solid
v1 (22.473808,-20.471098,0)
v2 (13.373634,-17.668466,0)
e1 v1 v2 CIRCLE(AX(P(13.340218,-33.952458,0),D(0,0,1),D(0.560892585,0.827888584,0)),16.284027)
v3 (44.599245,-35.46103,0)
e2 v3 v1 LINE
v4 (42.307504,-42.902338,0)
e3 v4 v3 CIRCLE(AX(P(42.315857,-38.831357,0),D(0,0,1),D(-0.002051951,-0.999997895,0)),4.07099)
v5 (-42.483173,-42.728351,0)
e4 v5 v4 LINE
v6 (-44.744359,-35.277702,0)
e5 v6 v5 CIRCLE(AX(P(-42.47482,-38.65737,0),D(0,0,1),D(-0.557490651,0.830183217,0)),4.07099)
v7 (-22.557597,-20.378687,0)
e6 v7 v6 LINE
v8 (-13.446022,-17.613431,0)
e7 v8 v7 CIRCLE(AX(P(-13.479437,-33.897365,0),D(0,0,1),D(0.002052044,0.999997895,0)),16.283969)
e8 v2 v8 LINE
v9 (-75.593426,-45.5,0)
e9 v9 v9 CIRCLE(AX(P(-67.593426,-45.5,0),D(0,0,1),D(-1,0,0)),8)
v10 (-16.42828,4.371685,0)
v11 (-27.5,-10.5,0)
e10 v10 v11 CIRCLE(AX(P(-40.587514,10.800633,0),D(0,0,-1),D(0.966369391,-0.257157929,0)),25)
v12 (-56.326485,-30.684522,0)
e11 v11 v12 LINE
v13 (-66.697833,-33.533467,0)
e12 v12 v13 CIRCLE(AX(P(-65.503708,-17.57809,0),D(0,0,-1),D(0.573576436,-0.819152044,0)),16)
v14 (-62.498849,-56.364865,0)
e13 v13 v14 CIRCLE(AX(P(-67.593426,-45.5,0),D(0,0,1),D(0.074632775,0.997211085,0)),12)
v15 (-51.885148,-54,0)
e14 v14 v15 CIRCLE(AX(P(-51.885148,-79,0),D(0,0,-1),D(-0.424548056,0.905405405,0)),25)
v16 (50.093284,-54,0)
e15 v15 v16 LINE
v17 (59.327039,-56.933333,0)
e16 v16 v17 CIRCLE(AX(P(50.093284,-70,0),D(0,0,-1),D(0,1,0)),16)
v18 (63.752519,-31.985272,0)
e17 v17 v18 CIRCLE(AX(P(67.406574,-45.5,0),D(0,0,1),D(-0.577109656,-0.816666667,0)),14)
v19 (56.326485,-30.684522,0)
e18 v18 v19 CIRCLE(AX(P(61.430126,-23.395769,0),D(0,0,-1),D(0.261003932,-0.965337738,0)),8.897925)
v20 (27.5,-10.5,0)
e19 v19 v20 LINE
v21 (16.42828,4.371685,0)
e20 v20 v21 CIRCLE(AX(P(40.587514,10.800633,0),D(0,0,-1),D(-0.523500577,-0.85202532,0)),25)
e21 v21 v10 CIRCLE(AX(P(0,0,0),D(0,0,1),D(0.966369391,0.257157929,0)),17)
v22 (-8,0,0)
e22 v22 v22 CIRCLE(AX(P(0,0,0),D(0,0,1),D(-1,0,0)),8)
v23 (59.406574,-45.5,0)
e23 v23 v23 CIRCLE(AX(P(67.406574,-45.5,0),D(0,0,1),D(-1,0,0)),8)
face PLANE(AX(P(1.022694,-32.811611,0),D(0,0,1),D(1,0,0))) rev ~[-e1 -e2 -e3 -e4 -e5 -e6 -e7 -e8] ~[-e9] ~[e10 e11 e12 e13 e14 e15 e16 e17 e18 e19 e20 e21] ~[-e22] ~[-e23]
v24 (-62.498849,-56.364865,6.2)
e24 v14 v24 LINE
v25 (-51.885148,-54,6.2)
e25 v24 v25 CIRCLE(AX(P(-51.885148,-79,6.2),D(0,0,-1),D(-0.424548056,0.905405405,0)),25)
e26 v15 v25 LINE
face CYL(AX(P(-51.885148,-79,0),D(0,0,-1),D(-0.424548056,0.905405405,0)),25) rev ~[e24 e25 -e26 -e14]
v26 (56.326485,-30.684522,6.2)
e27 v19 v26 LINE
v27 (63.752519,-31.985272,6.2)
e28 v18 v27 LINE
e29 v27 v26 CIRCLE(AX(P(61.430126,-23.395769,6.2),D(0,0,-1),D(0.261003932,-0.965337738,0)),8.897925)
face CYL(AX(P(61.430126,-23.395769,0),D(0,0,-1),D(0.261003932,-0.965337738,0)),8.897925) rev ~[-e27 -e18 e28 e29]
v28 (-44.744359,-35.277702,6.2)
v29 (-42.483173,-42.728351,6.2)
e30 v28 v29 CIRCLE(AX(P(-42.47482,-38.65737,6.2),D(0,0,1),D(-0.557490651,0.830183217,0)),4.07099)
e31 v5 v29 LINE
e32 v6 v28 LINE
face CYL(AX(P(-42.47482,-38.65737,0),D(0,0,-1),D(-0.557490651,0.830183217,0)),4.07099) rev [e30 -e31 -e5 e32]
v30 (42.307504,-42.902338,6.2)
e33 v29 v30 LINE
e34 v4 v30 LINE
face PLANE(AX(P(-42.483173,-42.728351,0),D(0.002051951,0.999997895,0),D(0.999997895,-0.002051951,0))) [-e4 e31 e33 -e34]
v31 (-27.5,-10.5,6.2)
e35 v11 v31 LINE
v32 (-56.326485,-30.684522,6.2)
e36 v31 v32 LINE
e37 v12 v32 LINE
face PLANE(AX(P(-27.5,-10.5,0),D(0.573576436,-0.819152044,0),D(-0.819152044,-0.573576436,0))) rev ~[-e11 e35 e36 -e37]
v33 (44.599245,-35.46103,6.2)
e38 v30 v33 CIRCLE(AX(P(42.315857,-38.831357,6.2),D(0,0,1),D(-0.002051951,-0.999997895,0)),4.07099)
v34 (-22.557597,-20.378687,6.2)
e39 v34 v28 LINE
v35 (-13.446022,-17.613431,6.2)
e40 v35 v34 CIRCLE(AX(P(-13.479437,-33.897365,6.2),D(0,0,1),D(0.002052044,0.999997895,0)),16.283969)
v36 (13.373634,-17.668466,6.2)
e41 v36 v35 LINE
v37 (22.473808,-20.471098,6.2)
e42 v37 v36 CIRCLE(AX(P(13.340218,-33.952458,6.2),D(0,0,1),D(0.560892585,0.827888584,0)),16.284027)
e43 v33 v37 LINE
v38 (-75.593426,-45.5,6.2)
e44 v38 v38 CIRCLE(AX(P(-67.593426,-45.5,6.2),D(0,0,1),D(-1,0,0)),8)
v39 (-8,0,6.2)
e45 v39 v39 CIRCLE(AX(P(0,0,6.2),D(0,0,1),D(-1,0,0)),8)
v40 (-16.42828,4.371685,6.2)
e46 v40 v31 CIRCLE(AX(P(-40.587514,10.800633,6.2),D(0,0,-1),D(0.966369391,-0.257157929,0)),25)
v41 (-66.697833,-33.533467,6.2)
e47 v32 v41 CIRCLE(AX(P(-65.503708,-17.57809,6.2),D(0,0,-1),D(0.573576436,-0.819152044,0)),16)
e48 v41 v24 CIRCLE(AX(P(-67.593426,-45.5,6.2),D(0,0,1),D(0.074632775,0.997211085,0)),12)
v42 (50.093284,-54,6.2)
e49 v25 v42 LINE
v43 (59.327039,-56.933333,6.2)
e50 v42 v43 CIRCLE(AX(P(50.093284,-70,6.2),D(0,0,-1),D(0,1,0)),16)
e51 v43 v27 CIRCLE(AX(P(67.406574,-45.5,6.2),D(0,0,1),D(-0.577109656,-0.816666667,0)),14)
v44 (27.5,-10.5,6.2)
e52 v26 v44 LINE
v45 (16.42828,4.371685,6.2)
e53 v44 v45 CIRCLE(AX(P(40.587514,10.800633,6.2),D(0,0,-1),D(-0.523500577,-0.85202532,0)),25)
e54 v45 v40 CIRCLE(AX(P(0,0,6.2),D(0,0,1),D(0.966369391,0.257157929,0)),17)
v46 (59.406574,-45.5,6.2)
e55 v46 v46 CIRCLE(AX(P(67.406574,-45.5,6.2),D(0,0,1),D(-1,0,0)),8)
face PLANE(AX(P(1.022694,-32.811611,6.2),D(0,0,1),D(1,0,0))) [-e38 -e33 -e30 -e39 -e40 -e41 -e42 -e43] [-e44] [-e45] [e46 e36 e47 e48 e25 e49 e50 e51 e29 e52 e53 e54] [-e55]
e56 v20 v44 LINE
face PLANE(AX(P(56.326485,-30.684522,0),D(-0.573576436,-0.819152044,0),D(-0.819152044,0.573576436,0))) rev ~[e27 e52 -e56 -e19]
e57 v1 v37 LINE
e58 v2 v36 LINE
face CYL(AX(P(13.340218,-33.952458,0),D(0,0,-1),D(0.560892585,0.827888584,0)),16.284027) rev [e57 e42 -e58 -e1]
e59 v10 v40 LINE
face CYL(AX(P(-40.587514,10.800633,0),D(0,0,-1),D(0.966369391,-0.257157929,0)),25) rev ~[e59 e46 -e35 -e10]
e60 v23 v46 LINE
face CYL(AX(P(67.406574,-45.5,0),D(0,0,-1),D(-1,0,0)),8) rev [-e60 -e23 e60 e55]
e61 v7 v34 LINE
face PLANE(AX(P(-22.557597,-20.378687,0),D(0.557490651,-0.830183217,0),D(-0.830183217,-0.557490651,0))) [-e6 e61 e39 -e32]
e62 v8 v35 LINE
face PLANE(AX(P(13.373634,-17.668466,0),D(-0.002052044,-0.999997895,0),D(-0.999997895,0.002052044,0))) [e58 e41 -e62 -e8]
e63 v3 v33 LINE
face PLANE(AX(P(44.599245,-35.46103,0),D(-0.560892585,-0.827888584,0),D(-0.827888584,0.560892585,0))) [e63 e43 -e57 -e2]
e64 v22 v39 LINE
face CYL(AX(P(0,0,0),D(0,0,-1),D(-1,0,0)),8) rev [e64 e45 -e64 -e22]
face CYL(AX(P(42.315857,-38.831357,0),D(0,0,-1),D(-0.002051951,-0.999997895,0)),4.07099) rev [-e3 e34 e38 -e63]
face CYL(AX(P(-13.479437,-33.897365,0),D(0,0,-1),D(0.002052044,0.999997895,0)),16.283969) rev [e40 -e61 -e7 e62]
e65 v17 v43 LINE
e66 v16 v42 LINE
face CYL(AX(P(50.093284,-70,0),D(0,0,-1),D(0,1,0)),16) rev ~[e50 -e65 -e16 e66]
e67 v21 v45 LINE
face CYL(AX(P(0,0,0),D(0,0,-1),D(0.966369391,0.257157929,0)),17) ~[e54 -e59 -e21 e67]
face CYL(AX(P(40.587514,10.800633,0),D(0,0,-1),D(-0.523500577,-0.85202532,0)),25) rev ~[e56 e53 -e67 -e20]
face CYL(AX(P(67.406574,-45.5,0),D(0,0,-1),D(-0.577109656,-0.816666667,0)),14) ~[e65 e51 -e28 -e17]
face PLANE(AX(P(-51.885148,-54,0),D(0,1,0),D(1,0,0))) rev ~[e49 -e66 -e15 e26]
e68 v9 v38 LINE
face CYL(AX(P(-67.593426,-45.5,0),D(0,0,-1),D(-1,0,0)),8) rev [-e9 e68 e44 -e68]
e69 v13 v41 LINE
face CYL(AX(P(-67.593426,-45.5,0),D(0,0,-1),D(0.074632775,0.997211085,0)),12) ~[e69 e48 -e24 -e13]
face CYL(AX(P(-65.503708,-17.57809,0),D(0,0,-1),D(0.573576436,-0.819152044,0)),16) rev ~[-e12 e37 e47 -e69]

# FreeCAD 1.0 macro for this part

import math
import FreeCAD as App
import Part
import Sketcher

V = App.Vector
Q = App.Units.Quantity

doc = App.newDocument("Part")
body = doc.addObject("PartDesign::Body", "Body")

# Sketch on XY plane
sketch1 = body.newObject("Sketcher::SketchObject", "Sketch")
sketch1.AttachmentSupport = (doc.getObject("XY_Plane"), [""])
sketch1.MapMode = "FlatFace"
sketch1.addGeometry(Part.LineSegment(V(56.3, -30.7, 0), V(27.5, -10.5, 0)), False)
sketch1.addGeometry(Part.ArcOfCircle(Part.Circle(V(40.6, 10.8, 0), V(0, 0, 1), 25), math.radians(-165), math.radians(-122)), False)
sketch1.addGeometry(Part.ArcOfCircle(Part.Circle(V(0, 0, 0), V(0, 0, 1), 17), math.radians(15), math.radians(165)), False)
sketch1.addGeometry(Part.ArcOfCircle(Part.Circle(V(-40.6, 10.8, 0), V(0, 0, 1), 25), math.radians(-58), math.radians(-15)), False)
sketch1.addGeometry(Part.LineSegment(V(-27.5, -10.5, 0), V(-56.3, -30.7, 0)), False)
sketch1.addGeometry(Part.ArcOfCircle(Part.Circle(V(-65.5, -17.6, 0), V(0, 0, 1), 16), math.radians(-94), math.radians(-55)), False)
sketch1.addGeometry(Part.ArcOfCircle(Part.Circle(V(-67.6, -45.5, 0), V(0, 0, 1), 12), math.radians(86), math.radians(295)), False)
sketch1.addGeometry(Part.ArcOfCircle(Part.Circle(V(-51.9, -79, 0), V(0, 0, 1), 25), math.radians(90), math.radians(115)), False)
sketch1.addGeometry(Part.LineSegment(V(-51.9, -54, 0), V(50.1, -54, 0)), False)
sketch1.addGeometry(Part.ArcOfCircle(Part.Circle(V(50.1, -70, 0), V(0, 0, 1), 16), math.radians(55), math.radians(90)), False)
sketch1.addGeometry(Part.ArcOfCircle(Part.Circle(V(67.4, -45.5, 0), V(0, 0, 1), 14), math.radians(-125), math.radians(105)), False)
sketch1.addGeometry(Part.ArcOfCircle(Part.Circle(V(61.4, -23.4, 0), V(0, 0, 1), 8.9), math.radians(-125), math.radians(-75)), False)
sketch1.addGeometry(Part.Circle(V(-67.6, -45.5, 0), V(0, 0, 1), 8), False)
sketch1.addGeometry(Part.Circle(V(67.4, -45.5, 0), V(0, 0, 1), 8), False)
sketch1.addGeometry(Part.LineSegment(V(-13.4, -17.6, 0), V(13.4, -17.7, 0)), False)
sketch1.addGeometry(Part.ArcOfCircle(Part.Circle(V(13.3, -34, 0), V(0, 0, 1), 16.3), math.radians(56), math.radians(90)), False)
sketch1.addGeometry(Part.LineSegment(V(22.5, -20.5, 0), V(44.6, -35.5, 0)), False)
sketch1.addGeometry(Part.ArcOfCircle(Part.Circle(V(42.3, -38.8, 0), V(0, 0, 1), 4.1), math.radians(-90), math.radians(56)), False)
sketch1.addGeometry(Part.LineSegment(V(42.3, -42.9, 0), V(-42.5, -42.7, 0)), False)
sketch1.addGeometry(Part.ArcOfCircle(Part.Circle(V(-42.5, -38.7, 0), V(0, 0, 1), 4.1), math.radians(124), math.radians(270)), False)
sketch1.addGeometry(Part.LineSegment(V(-44.7, -35.3, 0), V(-22.6, -20.4, 0)), False)
sketch1.addGeometry(Part.ArcOfCircle(Part.Circle(V(-13.5, -33.9, 0), V(0, 0, 1), 16.3), math.radians(90), math.radians(124)), False)
sketch1.addGeometry(Part.Circle(V(0, 0, 0), V(0, 0, 1), 8), False)
sketch1.addConstraint(Sketcher.Constraint("Coincident", 0, 2, 1, 2))
sketch1.addConstraint(Sketcher.Constraint("Tangent", 1, 1, 2, 1))
sketch1.addConstraint(Sketcher.Constraint("Tangent", 2, 2, 3, 2))
sketch1.addConstraint(Sketcher.Constraint("Coincident", 3, 1, 4, 1))
sketch1.addConstraint(Sketcher.Constraint("Tangent", 4, 2, 5, 2))
sketch1.addConstraint(Sketcher.Constraint("Tangent", 5, 1, 6, 1))
sketch1.addConstraint(Sketcher.Constraint("Tangent", 6, 2, 7, 2))
sketch1.addConstraint(Sketcher.Constraint("Tangent", 7, 1, 8, 1))
sketch1.addConstraint(Sketcher.Constraint("Tangent", 8, 2, 9, 2))
sketch1.addConstraint(Sketcher.Constraint("Tangent", 9, 1, 10, 1))
sketch1.addConstraint(Sketcher.Constraint("Tangent", 10, 2, 11, 2))
sketch1.addConstraint(Sketcher.Constraint("Tangent", 11, 1, 0, 1))
sketch1.addConstraint(Sketcher.Constraint("Tangent", 14, 2, 15, 2))
sketch1.addConstraint(Sketcher.Constraint("Tangent", 15, 1, 16, 1))
sketch1.addConstraint(Sketcher.Constraint("Tangent", 16, 2, 17, 2))
sketch1.addConstraint(Sketcher.Constraint("Tangent", 17, 1, 18, 1))
sketch1.addConstraint(Sketcher.Constraint("Tangent", 18, 2, 19, 2))
sketch1.addConstraint(Sketcher.Constraint("Tangent", 19, 1, 20, 1))
sketch1.addConstraint(Sketcher.Constraint("Tangent", 20, 2, 21, 2))
sketch1.addConstraint(Sketcher.Constraint("Tangent", 21, 1, 14, 1))
sketch1.addConstraint(Sketcher.Constraint("Horizontal", 8))
sketch1.addConstraint(Sketcher.Constraint("Coincident", 2, 3, -1, 1))
sketch1.addConstraint(Sketcher.Constraint("Coincident", 22, 3, -1, 1))
sketch1.addConstraint(Sketcher.Constraint("Coincident", 12, 3, 6, 3))
sketch1.addConstraint(Sketcher.Constraint("Coincident", 13, 3, 10, 3))
sketch1.addConstraint(Sketcher.Constraint("Equal", 1, 3))
sketch1.addConstraint(Sketcher.Constraint("Equal", 3, 7))
sketch1.addConstraint(Sketcher.Constraint("Equal", 5, 9))
sketch1.addConstraint(Sketcher.Constraint("Equal", 12, 13))
sketch1.addConstraint(Sketcher.Constraint("Equal", 17, 19))
sketch1.addConstraint(Sketcher.Constraint("Equal", 13, 22))
sketch1.addConstraint(Sketcher.Constraint("Symmetric", 0, 2, 3, 1, -2))
sketch1.addConstraint(Sketcher.Constraint("Symmetric", 4, 2, 11, 1, -2))
sketch1.addConstraint(Sketcher.Constraint("Parallel", 14, 18))
sketch1.addConstraint(Sketcher.Constraint("Horizontal", 6, 3, 10, 3))
sketch1.addConstraint(Sketcher.Constraint("Equal", 16, 20))
sketch1.addConstraint(Sketcher.Constraint("Diameter", 12, Q("16 mm")))
sketch1.addConstraint(Sketcher.Constraint("Radius", 1, Q("25 mm")))
sketch1.addConstraint(Sketcher.Constraint("Radius", 2, Q("17 mm")))
sketch1.addConstraint(Sketcher.Constraint("Radius", 5, Q("16 mm")))
sketch1.addConstraint(Sketcher.Constraint("Radius", 6, Q("12 mm")))
sketch1.addConstraint(Sketcher.Constraint("Radius", 10, Q("14 mm")))
sketch1.addConstraint(Sketcher.Constraint("Angle", 0, Q("145 deg")))
sketch1.addConstraint(Sketcher.Constraint("DistanceY", 7, 3, -1, 1, Q("79 mm")))
sketch1.addConstraint(Sketcher.Constraint("DistanceY", 6, 3, -1, 1, Q("45.5 mm")))
sketch1.addConstraint(Sketcher.Constraint("DistanceX", -1, 1, 0, 2, Q("27.5 mm")))
sketch1.addConstraint(Sketcher.Constraint("DistanceY", 0, 2, -1, 1, Q("10.5 mm")))
sketch1.addConstraint(Sketcher.Constraint("Radius", 17, Q("4.07099 mm")))
sketch1.addConstraint(Sketcher.Constraint("Radius", 21, Q("16.283969 mm")))
sketch1.addConstraint(Sketcher.Constraint("Radius", 11, Q("8.897925 mm")))
sketch1.addConstraint(Sketcher.Constraint("Radius", 15, Q("16.284027 mm")))
sketch1.addConstraint(Sketcher.Constraint("DistanceY", 15, 1, -1, 1, Q("20.471098 mm")))
sketch1.addConstraint(Sketcher.Constraint("DistanceX", 3, 3, 9, 3, Q("90.680799 mm")))
sketch1.addConstraint(Sketcher.Constraint("DistanceY", 17, 3, 15, 3, Q("4.878898 mm")))
sketch1.addConstraint(Sketcher.Constraint("Distance", 14, Q("26.819712 mm")))
sketch1.addConstraint(Sketcher.Constraint("Distance", 16, Q("26.725139 mm")))
sketch1.addConstraint(Sketcher.Constraint("DistanceX", -1, 1, 15, 3, Q("13.340218 mm")))
sketch1.addConstraint(Sketcher.Constraint("DistanceX", 19, 3, -1, 1, Q("42.47482 mm")))
pad1 = body.newObject("PartDesign::Pad", "Pad")
pad1.Profile = sketch1
pad1.Length = 6.2

doc.recompute()
